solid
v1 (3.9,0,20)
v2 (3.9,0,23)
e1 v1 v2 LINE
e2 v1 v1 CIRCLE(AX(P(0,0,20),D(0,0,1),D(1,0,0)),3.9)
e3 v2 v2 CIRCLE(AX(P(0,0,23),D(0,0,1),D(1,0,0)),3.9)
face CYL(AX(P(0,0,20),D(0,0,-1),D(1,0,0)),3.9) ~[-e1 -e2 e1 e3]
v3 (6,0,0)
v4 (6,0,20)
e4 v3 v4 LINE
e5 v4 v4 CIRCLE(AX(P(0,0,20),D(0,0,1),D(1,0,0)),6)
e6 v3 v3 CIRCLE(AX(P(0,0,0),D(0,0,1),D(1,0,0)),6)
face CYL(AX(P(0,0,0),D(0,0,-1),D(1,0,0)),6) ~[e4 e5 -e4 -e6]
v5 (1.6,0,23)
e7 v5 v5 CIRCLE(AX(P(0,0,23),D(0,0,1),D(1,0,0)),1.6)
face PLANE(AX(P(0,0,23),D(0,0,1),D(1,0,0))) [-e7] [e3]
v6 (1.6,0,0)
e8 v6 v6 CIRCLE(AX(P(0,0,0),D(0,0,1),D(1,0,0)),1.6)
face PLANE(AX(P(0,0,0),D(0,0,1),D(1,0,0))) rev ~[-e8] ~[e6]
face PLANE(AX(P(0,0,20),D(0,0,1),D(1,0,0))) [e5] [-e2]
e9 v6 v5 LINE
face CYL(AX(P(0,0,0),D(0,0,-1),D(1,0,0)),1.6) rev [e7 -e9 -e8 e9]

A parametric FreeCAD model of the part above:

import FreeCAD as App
import Part
import Sketcher
from FreeCAD import Vector

doc = App.newDocument("Part")
body = doc.addObject("PartDesign::Body", "Body")

sketch1 = body.newObject("Sketcher::SketchObject", "Sketch")
sketch1.AttachmentSupport = (doc.getObject("XY_Plane"), [""])
sketch1.MapMode = "FlatFace"
sketch1.addGeometry([
    Part.Circle(Vector(0, 0, 0), Vector(0, 0, 1), 6),
    Part.Circle(Vector(0, 0, 0), Vector(0, 0, 1), 1.6),
], False)
sketch1.addConstraint([
    Sketcher.Constraint("Coincident", 0, 3, -1, 1),
    Sketcher.Constraint("Coincident", 1, 3, -1, 1),
    Sketcher.Constraint("Diameter", 0, 12.0),
    Sketcher.Constraint("Diameter", 1, 3.2),
])
pad1 = body.newObject("PartDesign::Pad", "Pad")
pad1.Profile = sketch1
pad1.Length = 20

sketch2 = body.newObject("Sketcher::SketchObject", "Sketch001")
sketch2.AttachmentSupport = (doc.getObject("XY_Plane"), [""])
sketch2.MapMode = "FlatFace"
sketch2.AttachmentOffset = App.Placement(Vector(0, 0, 20), App.Rotation())
sketch2.addGeometry([
    Part.Circle(Vector(0, 0, 0), Vector(0, 0, 1), 3.9),
    Part.Circle(Vector(0, 0, 0), Vector(0, 0, 1), 1.6),
], False)
sketch2.addConstraint([
    Sketcher.Constraint("Coincident", 0, 3, -1, 1),
    Sketcher.Constraint("Coincident", 1, 3, -1, 1),
    Sketcher.Constraint("Diameter", 0, 7.8),
    Sketcher.Constraint("Diameter", 1, 3.2),
])
pad2 = body.newObject("PartDesign::Pad", "Pad001")
pad2.Profile = sketch2
pad2.Length = 3

doc.recompute()
